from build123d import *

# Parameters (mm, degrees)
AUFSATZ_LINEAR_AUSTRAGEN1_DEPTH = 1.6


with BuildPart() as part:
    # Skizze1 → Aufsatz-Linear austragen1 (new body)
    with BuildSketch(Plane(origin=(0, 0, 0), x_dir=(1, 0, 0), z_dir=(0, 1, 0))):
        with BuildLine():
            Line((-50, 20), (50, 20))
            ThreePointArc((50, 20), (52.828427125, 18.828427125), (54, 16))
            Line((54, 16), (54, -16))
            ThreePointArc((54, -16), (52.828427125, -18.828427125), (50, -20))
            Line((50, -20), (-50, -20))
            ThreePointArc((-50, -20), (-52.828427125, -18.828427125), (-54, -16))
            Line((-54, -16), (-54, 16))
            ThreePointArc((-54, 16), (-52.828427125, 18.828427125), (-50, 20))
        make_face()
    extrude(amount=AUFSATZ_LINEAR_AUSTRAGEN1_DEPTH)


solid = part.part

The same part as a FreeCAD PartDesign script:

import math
import FreeCAD as App
import Part
import Sketcher
from FreeCAD import Vector
Q = App.Units.Quantity

doc = App.newDocument("Part")
params = doc.addObject("Spreadsheet::Sheet", "Params")
for row, (alias, value) in enumerate([
    ("sketch1_radius", "4 mm"),
    ("sketch1_width", "100 mm"),
    ("sketch1_height", "32 mm"),
    ("pad1_length", "1.6 mm"),
], start=1):
    params.set(f"A{row}", alias)
    params.set(f"B{row}", "=" + value)
    params.setAlias(f"B{row}", alias)

body = doc.addObject("PartDesign::Body", "Body")

sketch1 = body.newObject("Sketcher::SketchObject", "Sketch")
sketch1.AttachmentSupport = (doc.getObject("XZ_Plane"), [""])
sketch1.MapMode = "FlatFace"
sketch1.addGeometry(Part.LineSegment(Vector(50, -20, 0), Vector(-50, -20, 0)), False)
sketch1.addGeometry(Part.ArcOfCircle(Part.Circle(Vector(-50, -16, 0), Vector(0, 0, 1), 4), math.radians(180), math.radians(270)), False)
sketch1.addGeometry(Part.LineSegment(Vector(-54, -16, 0), Vector(-54, 16, 0)), False)
sketch1.addGeometry(Part.ArcOfCircle(Part.Circle(Vector(-50, 16, 0), Vector(0, 0, 1), 4), math.radians(90), math.radians(180)), False)
sketch1.addGeometry(Part.LineSegment(Vector(-50, 20, 0), Vector(50, 20, 0)), False)
sketch1.addGeometry(Part.ArcOfCircle(Part.Circle(Vector(50, 16, 0), Vector(0, 0, 1), 4), math.radians(0), math.radians(90)), False)
sketch1.addGeometry(Part.LineSegment(Vector(54, 16, 0), Vector(54, -16, 0)), False)
sketch1.addGeometry(Part.ArcOfCircle(Part.Circle(Vector(50, -16, 0), Vector(0, 0, 1), 4), math.radians(-90), math.radians(0)), False)
sketch1.addConstraint(Sketcher.Constraint("Tangent", 0, 2, 1, 2))
sketch1.addConstraint(Sketcher.Constraint("Tangent", 1, 1, 2, 1))
sketch1.addConstraint(Sketcher.Constraint("Tangent", 2, 2, 3, 2))
sketch1.addConstraint(Sketcher.Constraint("Tangent", 3, 1, 4, 1))
sketch1.addConstraint(Sketcher.Constraint("Tangent", 4, 2, 5, 2))
sketch1.addConstraint(Sketcher.Constraint("Tangent", 5, 1, 6, 1))
sketch1.addConstraint(Sketcher.Constraint("Tangent", 6, 2, 7, 2))
sketch1.addConstraint(Sketcher.Constraint("Tangent", 7, 1, 0, 1))
sketch1.addConstraint(Sketcher.Constraint("Horizontal", 0))
sketch1.addConstraint(Sketcher.Constraint("Vertical", 2))
sketch1.addConstraint(Sketcher.Constraint("Horizontal", 4))
sketch1.addConstraint(Sketcher.Constraint("Vertical", 6))
sketch1.addConstraint(Sketcher.Constraint("Equal", 1, 3))
sketch1.addConstraint(Sketcher.Constraint("Equal", 3, 5))
sketch1.addConstraint(Sketcher.Constraint("Equal", 5, 7))
sketch1.addConstraint(Sketcher.Constraint("Symmetric", 1, 3, 5, 3, -1, 1))
sketch1.addConstraint(Sketcher.Constraint("Radius", 1, Q("4 mm")))
sketch1.addConstraint(Sketcher.Constraint("DistanceX", 0, 2, 0, 1, Q("100 mm")))
sketch1.addConstraint(Sketcher.Constraint("DistanceY", 2, 1, 2, 2, Q("32 mm")))
sketch1.setExpression("Constraints[16]", "Params.sketch1_radius")
sketch1.setExpression("Constraints[17]", "Params.sketch1_width")
sketch1.setExpression("Constraints[18]", "Params.sketch1_height")
pad1 = body.newObject("PartDesign::Pad", "Pad")
pad1.Profile = sketch1
pad1.setExpression("Length", "Params.pad1_length")
pad1.Reversed = True

doc.recompute()
